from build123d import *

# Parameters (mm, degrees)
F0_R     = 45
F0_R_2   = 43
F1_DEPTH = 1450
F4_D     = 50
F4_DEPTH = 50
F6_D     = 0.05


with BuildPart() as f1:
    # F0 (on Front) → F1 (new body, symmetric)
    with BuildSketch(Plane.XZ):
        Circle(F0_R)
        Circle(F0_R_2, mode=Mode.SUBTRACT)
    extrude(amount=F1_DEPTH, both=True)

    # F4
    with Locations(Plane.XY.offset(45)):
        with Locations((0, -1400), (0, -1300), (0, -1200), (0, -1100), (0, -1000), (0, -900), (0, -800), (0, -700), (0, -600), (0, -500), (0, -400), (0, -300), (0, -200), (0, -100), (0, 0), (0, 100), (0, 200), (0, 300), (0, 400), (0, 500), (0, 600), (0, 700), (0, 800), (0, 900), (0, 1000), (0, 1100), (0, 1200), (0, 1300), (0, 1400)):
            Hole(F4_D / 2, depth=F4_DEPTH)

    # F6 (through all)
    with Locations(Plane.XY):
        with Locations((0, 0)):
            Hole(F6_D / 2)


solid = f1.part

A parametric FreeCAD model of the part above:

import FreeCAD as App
import Part
import Sketcher

V = App.Vector

doc = App.newDocument("Part")
body = doc.addObject("PartDesign::Body", "Body")

# Sketch on XZ plane
sketch1 = body.newObject("Sketcher::SketchObject", "Sketch")
sketch1.AttachmentSupport = (doc.getObject("XZ_Plane"), [""])
sketch1.MapMode = "FlatFace"
sketch1.addGeometry([
    Part.Circle(V(0, 0, 0), V(0, 0, 1), 45),
    Part.Circle(V(0, 0, 0), V(0, 0, 1), 43),
], False)
sketch1.addConstraint([
    Sketcher.Constraint("Coincident", 0, 3, -1, 1),
    Sketcher.Constraint("Coincident", 1, 3, -1, 1),
    Sketcher.Constraint("Diameter", 0, 90.0),
    Sketcher.Constraint("Diameter", 1, 86.0),
])
pad1 = body.newObject("PartDesign::Pad", "Pad")
pad1.Profile = sketch1
pad1.Length = 2900
pad1.Midplane = True

# Sketch on XY plane
sketch2 = body.newObject("Sketcher::SketchObject", "Sketch001")
sketch2.AttachmentSupport = (doc.getObject("XY_Plane"), [""])
sketch2.MapMode = "FlatFace"
sketch2.AttachmentOffset = App.Placement(V(0, 0, 45), App.Rotation())
sketch2.addGeometry([
    Part.Circle(V(0, -1400, 0), V(0, 0, 1), 25),  # 0
    Part.Circle(V(0, -1300, 0), V(0, 0, 1), 25),  # 1
    Part.Circle(V(0, -1200, 0), V(0, 0, 1), 25),  # 2
    Part.Circle(V(0, -1100, 0), V(0, 0, 1), 25),  # 3
    Part.Circle(V(0, -1000, 0), V(0, 0, 1), 25),  # 4
    Part.Circle(V(0, -900, 0), V(0, 0, 1), 25),  # 5
    Part.Circle(V(0, -800, 0), V(0, 0, 1), 25),  # 6
    Part.Circle(V(0, -700, 0), V(0, 0, 1), 25),  # 7
    Part.Circle(V(0, -600, 0), V(0, 0, 1), 25),  # 8
    Part.Circle(V(0, -500, 0), V(0, 0, 1), 25),  # 9
    Part.Circle(V(0, -400, 0), V(0, 0, 1), 25),  # 10
    Part.Circle(V(0, -300, 0), V(0, 0, 1), 25),  # 11
    Part.Circle(V(0, -200, 0), V(0, 0, 1), 25),  # 12
    Part.Circle(V(0, -100, 0), V(0, 0, 1), 25),  # 13
    Part.Circle(V(0, 0, 0), V(0, 0, 1), 25),  # 14
    Part.Circle(V(0, 100, 0), V(0, 0, 1), 25),  # 15
    Part.Circle(V(0, 200, 0), V(0, 0, 1), 25),  # 16
    Part.Circle(V(0, 300, 0), V(0, 0, 1), 25),  # 17
    Part.Circle(V(0, 400, 0), V(0, 0, 1), 25),  # 18
    Part.Circle(V(0, 500, 0), V(0, 0, 1), 25),  # 19
    Part.Circle(V(0, 600, 0), V(0, 0, 1), 25),  # 20
    Part.Circle(V(0, 700, 0), V(0, 0, 1), 25),  # 21
    Part.Circle(V(0, 800, 0), V(0, 0, 1), 25),  # 22
    Part.Circle(V(0, 900, 0), V(0, 0, 1), 25),  # 23
    Part.Circle(V(0, 1000, 0), V(0, 0, 1), 25),  # 24
    Part.Circle(V(0, 1100, 0), V(0, 0, 1), 25),  # 25
    Part.Circle(V(0, 1200, 0), V(0, 0, 1), 25),  # 26
    Part.Circle(V(0, 1300, 0), V(0, 0, 1), 25),  # 27
    Part.Circle(V(0, 1400, 0), V(0, 0, 1), 25),  # 28
], False)
sketch2.addConstraint([
    Sketcher.Constraint("Coincident", 14, 3, -1, 1),
    Sketcher.Constraint("Equal", 0, 1),
    Sketcher.Constraint("Equal", 1, 2),
    Sketcher.Constraint("Equal", 2, 3),
    Sketcher.Constraint("Equal", 3, 4),
    Sketcher.Constraint("Equal", 4, 5),
    Sketcher.Constraint("Equal", 5, 6),
    Sketcher.Constraint("Equal", 6, 7),
    Sketcher.Constraint("Equal", 7, 8),
    Sketcher.Constraint("Equal", 8, 9),
    Sketcher.Constraint("Equal", 9, 10),
    Sketcher.Constraint("Equal", 10, 11),
    Sketcher.Constraint("Equal", 11, 12),
    Sketcher.Constraint("Equal", 12, 13),
    Sketcher.Constraint("Equal", 13, 14),
    Sketcher.Constraint("Equal", 14, 15),
    Sketcher.Constraint("Equal", 15, 16),
    Sketcher.Constraint("Equal", 16, 17),
    Sketcher.Constraint("Equal", 17, 18),
    Sketcher.Constraint("Equal", 18, 19),
    Sketcher.Constraint("Equal", 19, 20),
    Sketcher.Constraint("Equal", 20, 21),
    Sketcher.Constraint("Equal", 21, 22),
    Sketcher.Constraint("Equal", 22, 23),
    Sketcher.Constraint("Equal", 23, 24),
    Sketcher.Constraint("Equal", 24, 25),
    Sketcher.Constraint("Equal", 25, 26),
    Sketcher.Constraint("Equal", 26, 27),
    Sketcher.Constraint("Equal", 27, 28),
    Sketcher.Constraint("Symmetric", 13, 3, 15, 3, -1, 1),
    Sketcher.Constraint("Symmetric", 12, 3, 16, 3, -1, 1),
    Sketcher.Constraint("Symmetric", 11, 3, 17, 3, -1, 1),
    Sketcher.Constraint("Symmetric", 10, 3, 18, 3, -1, 1),
    Sketcher.Constraint("Symmetric", 9, 3, 19, 3, -1, 1),
    Sketcher.Constraint("Symmetric", 8, 3, 20, 3, -1, 1),
    Sketcher.Constraint("Symmetric", 7, 3, 21, 3, -1, 1),
    Sketcher.Constraint("Symmetric", 6, 3, 22, 3, -1, 1),
    Sketcher.Constraint("Symmetric", 5, 3, 23, 3, -1, 1),
    Sketcher.Constraint("Symmetric", 4, 3, 24, 3, -1, 1),
    Sketcher.Constraint("Symmetric", 3, 3, 25, 3, -1, 1),
    Sketcher.Constraint("Symmetric", 2, 3, 26, 3, -1, 1),
    Sketcher.Constraint("Symmetric", 1, 3, 27, 3, -1, 1),
    Sketcher.Constraint("Symmetric", 0, 3, 28, 3, -1, 1),
    Sketcher.Constraint("PointOnObject", 0, 3, -2),
    Sketcher.Constraint("PointOnObject", 1, 3, -2),
    Sketcher.Constraint("PointOnObject", 2, 3, -2),
    Sketcher.Constraint("PointOnObject", 3, 3, -2),
    Sketcher.Constraint("PointOnObject", 4, 3, -2),
    Sketcher.Constraint("PointOnObject", 5, 3, -2),
    Sketcher.Constraint("PointOnObject", 6, 3, -2),
    Sketcher.Constraint("PointOnObject", 7, 3, -2),
    Sketcher.Constraint("PointOnObject", 8, 3, -2),
    Sketcher.Constraint("PointOnObject", 9, 3, -2),
    Sketcher.Constraint("PointOnObject", 10, 3, -2),
    Sketcher.Constraint("PointOnObject", 11, 3, -2),
    Sketcher.Constraint("PointOnObject", 12, 3, -2),
    Sketcher.Constraint("PointOnObject", 13, 3, -2),
    Sketcher.Constraint("Diameter", 0, 50.0),
    Sketcher.Constraint("DistanceY", 0, 3, -1, 1, 1400.0),
    Sketcher.Constraint("DistanceY", 1, 3, -1, 1, 1300.0),
    Sketcher.Constraint("DistanceY", 2, 3, -1, 1, 1200.0),
    Sketcher.Constraint("DistanceY", 3, 3, -1, 1, 1100.0),
    Sketcher.Constraint("DistanceY", 4, 3, -1, 1, 1000.0),
    Sketcher.Constraint("DistanceY", 5, 3, -1, 1, 900.0),
    Sketcher.Constraint("DistanceY", 6, 3, -1, 1, 800.0),
    Sketcher.Constraint("DistanceY", 7, 3, -1, 1, 700.0),
    Sketcher.Constraint("DistanceY", 8, 3, -1, 1, 600.0),
    Sketcher.Constraint("DistanceY", 9, 3, -1, 1, 500.0),
    Sketcher.Constraint("DistanceY", 10, 3, -1, 1, 400.0),
    Sketcher.Constraint("DistanceY", 11, 3, -1, 1, 300.0),
    Sketcher.Constraint("DistanceY", 12, 3, -1, 1, 200.0),
    Sketcher.Constraint("DistanceY", 13, 3, -1, 1, 100.0),
])
doc.recompute()
hole = body.newObject("PartDesign::Hole", "Hole")
hole.Profile = sketch2
hole.ThreadType = "None"
hole.Diameter = 50
hole.DepthType = "Dimension"
hole.Depth = 50
hole.DrillPoint = "Flat"

# Sketch on XY plane
sketch3 = body.newObject("Sketcher::SketchObject", "Sketch002")
sketch3.AttachmentSupport = (doc.getObject("XY_Plane"), [""])
sketch3.MapMode = "FlatFace"
sketch3.addGeometry(Part.Circle(V(0, 0, 0), V(0, 0, 1), 0.025), False)
sketch3.addConstraint([
    Sketcher.Constraint("Coincident", 0, 3, -1, 1),
    Sketcher.Constraint("Diameter", 0, 0.05),
])
doc.recompute()
hole2 = body.newObject("PartDesign::Hole", "Hole001")
hole2.Profile = sketch3
hole2.ThreadType = "None"
hole2.Diameter = 0.05
hole2.DepthType = "ThroughAll"

doc.recompute()
